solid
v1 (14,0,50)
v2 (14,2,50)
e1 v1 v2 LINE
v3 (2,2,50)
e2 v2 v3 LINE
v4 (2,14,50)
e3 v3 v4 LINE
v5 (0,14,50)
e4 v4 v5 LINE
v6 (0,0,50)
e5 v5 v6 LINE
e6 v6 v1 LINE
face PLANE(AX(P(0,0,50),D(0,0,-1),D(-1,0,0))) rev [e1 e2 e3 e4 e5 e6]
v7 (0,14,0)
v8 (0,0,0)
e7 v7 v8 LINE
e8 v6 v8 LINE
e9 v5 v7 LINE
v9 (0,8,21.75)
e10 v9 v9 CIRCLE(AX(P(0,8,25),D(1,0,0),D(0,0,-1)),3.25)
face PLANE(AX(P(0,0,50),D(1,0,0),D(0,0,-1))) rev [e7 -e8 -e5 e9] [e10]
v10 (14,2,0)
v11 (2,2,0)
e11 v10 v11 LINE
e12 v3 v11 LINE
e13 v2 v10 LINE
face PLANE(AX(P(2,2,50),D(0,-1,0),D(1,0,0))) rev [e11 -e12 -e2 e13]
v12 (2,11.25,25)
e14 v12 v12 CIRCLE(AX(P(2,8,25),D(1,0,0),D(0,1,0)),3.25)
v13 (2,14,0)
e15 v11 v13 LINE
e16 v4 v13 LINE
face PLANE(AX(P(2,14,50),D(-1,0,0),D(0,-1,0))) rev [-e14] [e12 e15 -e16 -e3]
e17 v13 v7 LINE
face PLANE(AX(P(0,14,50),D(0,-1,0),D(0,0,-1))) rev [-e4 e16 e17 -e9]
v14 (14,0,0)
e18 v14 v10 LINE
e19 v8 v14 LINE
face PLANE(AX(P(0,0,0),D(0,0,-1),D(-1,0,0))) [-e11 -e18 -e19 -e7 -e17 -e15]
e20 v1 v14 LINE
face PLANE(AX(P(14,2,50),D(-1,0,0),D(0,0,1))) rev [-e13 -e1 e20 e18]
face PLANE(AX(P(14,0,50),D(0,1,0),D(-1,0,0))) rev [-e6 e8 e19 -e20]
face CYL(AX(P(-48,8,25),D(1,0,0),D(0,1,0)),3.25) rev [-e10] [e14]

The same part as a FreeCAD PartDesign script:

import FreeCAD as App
import Part
import Sketcher

V = App.Vector


def add_polygon(sketch, points):
    """Adds a closed chain of lines whose ends are joined by coincident constraints."""
    first, n = sketch.GeometryCount, len(points)
    for a, b in zip(points, points[1:] + points[:1]):
        sketch.addGeometry(Part.LineSegment(App.Vector(*a, 0), App.Vector(*b, 0)), False)
    for i in range(n):
        sketch.addConstraint(Sketcher.Constraint("Coincident", first + i, 2, first + (i + 1) % n, 1))

doc = App.newDocument("Part")
body = doc.addObject("PartDesign::Body", "Body")

# Sketch on XY plane
sketch1 = body.newObject("Sketcher::SketchObject", "Sketch")
sketch1.AttachmentSupport = (doc.getObject("XY_Plane"), [""])
sketch1.MapMode = "FlatFace"
add_polygon(sketch1, [(0, 14), (0, 0), (14, 0), (14, 2), (2, 2), (2, 14)])  # lines 0-5
sketch1.addConstraint([
    Sketcher.Constraint("Vertical", 0),
    Sketcher.Constraint("Horizontal", 1),
    Sketcher.Constraint("Vertical", 2),
    Sketcher.Constraint("Horizontal", 3),
    Sketcher.Constraint("Vertical", 4),
    Sketcher.Constraint("Horizontal", 5),
    Sketcher.Constraint("Coincident", 0, 2, -1, 1),
    Sketcher.Constraint("Equal", 1, 0),
    Sketcher.Constraint("Equal", 5, 2),
    Sketcher.Constraint("DistanceX", 1, 1, 1, 2, 14.0),
    Sketcher.Constraint("DistanceX", 3, 2, 3, 1, 12.0),
])
pad1 = body.newObject("PartDesign::Pad", "Pad")
pad1.Profile = sketch1
pad1.Length = 50

# Sketch on YZ plane
sketch2 = body.newObject("Sketcher::SketchObject", "Sketch001")
sketch2.AttachmentSupport = (doc.getObject("YZ_Plane"), [""])
sketch2.MapMode = "FlatFace"
sketch2.AttachmentOffset = App.Placement(V(0, 0, 2), App.Rotation())
sketch2.addGeometry(Part.Circle(V(8, 25, 0), V(0, 0, 1), 3.2), False)
sketch2.addConstraint([
    Sketcher.Constraint("Diameter", 0, 6.5),
    Sketcher.Constraint("DistanceX", -1, 1, 0, 3, 8.0),
    Sketcher.Constraint("DistanceY", -1, 1, 0, 3, 25.0),
])
pocket1 = body.newObject("PartDesign::Pocket", "Pocket")
pocket1.Profile = sketch2
pocket1.Length = 50

doc.recompute()
